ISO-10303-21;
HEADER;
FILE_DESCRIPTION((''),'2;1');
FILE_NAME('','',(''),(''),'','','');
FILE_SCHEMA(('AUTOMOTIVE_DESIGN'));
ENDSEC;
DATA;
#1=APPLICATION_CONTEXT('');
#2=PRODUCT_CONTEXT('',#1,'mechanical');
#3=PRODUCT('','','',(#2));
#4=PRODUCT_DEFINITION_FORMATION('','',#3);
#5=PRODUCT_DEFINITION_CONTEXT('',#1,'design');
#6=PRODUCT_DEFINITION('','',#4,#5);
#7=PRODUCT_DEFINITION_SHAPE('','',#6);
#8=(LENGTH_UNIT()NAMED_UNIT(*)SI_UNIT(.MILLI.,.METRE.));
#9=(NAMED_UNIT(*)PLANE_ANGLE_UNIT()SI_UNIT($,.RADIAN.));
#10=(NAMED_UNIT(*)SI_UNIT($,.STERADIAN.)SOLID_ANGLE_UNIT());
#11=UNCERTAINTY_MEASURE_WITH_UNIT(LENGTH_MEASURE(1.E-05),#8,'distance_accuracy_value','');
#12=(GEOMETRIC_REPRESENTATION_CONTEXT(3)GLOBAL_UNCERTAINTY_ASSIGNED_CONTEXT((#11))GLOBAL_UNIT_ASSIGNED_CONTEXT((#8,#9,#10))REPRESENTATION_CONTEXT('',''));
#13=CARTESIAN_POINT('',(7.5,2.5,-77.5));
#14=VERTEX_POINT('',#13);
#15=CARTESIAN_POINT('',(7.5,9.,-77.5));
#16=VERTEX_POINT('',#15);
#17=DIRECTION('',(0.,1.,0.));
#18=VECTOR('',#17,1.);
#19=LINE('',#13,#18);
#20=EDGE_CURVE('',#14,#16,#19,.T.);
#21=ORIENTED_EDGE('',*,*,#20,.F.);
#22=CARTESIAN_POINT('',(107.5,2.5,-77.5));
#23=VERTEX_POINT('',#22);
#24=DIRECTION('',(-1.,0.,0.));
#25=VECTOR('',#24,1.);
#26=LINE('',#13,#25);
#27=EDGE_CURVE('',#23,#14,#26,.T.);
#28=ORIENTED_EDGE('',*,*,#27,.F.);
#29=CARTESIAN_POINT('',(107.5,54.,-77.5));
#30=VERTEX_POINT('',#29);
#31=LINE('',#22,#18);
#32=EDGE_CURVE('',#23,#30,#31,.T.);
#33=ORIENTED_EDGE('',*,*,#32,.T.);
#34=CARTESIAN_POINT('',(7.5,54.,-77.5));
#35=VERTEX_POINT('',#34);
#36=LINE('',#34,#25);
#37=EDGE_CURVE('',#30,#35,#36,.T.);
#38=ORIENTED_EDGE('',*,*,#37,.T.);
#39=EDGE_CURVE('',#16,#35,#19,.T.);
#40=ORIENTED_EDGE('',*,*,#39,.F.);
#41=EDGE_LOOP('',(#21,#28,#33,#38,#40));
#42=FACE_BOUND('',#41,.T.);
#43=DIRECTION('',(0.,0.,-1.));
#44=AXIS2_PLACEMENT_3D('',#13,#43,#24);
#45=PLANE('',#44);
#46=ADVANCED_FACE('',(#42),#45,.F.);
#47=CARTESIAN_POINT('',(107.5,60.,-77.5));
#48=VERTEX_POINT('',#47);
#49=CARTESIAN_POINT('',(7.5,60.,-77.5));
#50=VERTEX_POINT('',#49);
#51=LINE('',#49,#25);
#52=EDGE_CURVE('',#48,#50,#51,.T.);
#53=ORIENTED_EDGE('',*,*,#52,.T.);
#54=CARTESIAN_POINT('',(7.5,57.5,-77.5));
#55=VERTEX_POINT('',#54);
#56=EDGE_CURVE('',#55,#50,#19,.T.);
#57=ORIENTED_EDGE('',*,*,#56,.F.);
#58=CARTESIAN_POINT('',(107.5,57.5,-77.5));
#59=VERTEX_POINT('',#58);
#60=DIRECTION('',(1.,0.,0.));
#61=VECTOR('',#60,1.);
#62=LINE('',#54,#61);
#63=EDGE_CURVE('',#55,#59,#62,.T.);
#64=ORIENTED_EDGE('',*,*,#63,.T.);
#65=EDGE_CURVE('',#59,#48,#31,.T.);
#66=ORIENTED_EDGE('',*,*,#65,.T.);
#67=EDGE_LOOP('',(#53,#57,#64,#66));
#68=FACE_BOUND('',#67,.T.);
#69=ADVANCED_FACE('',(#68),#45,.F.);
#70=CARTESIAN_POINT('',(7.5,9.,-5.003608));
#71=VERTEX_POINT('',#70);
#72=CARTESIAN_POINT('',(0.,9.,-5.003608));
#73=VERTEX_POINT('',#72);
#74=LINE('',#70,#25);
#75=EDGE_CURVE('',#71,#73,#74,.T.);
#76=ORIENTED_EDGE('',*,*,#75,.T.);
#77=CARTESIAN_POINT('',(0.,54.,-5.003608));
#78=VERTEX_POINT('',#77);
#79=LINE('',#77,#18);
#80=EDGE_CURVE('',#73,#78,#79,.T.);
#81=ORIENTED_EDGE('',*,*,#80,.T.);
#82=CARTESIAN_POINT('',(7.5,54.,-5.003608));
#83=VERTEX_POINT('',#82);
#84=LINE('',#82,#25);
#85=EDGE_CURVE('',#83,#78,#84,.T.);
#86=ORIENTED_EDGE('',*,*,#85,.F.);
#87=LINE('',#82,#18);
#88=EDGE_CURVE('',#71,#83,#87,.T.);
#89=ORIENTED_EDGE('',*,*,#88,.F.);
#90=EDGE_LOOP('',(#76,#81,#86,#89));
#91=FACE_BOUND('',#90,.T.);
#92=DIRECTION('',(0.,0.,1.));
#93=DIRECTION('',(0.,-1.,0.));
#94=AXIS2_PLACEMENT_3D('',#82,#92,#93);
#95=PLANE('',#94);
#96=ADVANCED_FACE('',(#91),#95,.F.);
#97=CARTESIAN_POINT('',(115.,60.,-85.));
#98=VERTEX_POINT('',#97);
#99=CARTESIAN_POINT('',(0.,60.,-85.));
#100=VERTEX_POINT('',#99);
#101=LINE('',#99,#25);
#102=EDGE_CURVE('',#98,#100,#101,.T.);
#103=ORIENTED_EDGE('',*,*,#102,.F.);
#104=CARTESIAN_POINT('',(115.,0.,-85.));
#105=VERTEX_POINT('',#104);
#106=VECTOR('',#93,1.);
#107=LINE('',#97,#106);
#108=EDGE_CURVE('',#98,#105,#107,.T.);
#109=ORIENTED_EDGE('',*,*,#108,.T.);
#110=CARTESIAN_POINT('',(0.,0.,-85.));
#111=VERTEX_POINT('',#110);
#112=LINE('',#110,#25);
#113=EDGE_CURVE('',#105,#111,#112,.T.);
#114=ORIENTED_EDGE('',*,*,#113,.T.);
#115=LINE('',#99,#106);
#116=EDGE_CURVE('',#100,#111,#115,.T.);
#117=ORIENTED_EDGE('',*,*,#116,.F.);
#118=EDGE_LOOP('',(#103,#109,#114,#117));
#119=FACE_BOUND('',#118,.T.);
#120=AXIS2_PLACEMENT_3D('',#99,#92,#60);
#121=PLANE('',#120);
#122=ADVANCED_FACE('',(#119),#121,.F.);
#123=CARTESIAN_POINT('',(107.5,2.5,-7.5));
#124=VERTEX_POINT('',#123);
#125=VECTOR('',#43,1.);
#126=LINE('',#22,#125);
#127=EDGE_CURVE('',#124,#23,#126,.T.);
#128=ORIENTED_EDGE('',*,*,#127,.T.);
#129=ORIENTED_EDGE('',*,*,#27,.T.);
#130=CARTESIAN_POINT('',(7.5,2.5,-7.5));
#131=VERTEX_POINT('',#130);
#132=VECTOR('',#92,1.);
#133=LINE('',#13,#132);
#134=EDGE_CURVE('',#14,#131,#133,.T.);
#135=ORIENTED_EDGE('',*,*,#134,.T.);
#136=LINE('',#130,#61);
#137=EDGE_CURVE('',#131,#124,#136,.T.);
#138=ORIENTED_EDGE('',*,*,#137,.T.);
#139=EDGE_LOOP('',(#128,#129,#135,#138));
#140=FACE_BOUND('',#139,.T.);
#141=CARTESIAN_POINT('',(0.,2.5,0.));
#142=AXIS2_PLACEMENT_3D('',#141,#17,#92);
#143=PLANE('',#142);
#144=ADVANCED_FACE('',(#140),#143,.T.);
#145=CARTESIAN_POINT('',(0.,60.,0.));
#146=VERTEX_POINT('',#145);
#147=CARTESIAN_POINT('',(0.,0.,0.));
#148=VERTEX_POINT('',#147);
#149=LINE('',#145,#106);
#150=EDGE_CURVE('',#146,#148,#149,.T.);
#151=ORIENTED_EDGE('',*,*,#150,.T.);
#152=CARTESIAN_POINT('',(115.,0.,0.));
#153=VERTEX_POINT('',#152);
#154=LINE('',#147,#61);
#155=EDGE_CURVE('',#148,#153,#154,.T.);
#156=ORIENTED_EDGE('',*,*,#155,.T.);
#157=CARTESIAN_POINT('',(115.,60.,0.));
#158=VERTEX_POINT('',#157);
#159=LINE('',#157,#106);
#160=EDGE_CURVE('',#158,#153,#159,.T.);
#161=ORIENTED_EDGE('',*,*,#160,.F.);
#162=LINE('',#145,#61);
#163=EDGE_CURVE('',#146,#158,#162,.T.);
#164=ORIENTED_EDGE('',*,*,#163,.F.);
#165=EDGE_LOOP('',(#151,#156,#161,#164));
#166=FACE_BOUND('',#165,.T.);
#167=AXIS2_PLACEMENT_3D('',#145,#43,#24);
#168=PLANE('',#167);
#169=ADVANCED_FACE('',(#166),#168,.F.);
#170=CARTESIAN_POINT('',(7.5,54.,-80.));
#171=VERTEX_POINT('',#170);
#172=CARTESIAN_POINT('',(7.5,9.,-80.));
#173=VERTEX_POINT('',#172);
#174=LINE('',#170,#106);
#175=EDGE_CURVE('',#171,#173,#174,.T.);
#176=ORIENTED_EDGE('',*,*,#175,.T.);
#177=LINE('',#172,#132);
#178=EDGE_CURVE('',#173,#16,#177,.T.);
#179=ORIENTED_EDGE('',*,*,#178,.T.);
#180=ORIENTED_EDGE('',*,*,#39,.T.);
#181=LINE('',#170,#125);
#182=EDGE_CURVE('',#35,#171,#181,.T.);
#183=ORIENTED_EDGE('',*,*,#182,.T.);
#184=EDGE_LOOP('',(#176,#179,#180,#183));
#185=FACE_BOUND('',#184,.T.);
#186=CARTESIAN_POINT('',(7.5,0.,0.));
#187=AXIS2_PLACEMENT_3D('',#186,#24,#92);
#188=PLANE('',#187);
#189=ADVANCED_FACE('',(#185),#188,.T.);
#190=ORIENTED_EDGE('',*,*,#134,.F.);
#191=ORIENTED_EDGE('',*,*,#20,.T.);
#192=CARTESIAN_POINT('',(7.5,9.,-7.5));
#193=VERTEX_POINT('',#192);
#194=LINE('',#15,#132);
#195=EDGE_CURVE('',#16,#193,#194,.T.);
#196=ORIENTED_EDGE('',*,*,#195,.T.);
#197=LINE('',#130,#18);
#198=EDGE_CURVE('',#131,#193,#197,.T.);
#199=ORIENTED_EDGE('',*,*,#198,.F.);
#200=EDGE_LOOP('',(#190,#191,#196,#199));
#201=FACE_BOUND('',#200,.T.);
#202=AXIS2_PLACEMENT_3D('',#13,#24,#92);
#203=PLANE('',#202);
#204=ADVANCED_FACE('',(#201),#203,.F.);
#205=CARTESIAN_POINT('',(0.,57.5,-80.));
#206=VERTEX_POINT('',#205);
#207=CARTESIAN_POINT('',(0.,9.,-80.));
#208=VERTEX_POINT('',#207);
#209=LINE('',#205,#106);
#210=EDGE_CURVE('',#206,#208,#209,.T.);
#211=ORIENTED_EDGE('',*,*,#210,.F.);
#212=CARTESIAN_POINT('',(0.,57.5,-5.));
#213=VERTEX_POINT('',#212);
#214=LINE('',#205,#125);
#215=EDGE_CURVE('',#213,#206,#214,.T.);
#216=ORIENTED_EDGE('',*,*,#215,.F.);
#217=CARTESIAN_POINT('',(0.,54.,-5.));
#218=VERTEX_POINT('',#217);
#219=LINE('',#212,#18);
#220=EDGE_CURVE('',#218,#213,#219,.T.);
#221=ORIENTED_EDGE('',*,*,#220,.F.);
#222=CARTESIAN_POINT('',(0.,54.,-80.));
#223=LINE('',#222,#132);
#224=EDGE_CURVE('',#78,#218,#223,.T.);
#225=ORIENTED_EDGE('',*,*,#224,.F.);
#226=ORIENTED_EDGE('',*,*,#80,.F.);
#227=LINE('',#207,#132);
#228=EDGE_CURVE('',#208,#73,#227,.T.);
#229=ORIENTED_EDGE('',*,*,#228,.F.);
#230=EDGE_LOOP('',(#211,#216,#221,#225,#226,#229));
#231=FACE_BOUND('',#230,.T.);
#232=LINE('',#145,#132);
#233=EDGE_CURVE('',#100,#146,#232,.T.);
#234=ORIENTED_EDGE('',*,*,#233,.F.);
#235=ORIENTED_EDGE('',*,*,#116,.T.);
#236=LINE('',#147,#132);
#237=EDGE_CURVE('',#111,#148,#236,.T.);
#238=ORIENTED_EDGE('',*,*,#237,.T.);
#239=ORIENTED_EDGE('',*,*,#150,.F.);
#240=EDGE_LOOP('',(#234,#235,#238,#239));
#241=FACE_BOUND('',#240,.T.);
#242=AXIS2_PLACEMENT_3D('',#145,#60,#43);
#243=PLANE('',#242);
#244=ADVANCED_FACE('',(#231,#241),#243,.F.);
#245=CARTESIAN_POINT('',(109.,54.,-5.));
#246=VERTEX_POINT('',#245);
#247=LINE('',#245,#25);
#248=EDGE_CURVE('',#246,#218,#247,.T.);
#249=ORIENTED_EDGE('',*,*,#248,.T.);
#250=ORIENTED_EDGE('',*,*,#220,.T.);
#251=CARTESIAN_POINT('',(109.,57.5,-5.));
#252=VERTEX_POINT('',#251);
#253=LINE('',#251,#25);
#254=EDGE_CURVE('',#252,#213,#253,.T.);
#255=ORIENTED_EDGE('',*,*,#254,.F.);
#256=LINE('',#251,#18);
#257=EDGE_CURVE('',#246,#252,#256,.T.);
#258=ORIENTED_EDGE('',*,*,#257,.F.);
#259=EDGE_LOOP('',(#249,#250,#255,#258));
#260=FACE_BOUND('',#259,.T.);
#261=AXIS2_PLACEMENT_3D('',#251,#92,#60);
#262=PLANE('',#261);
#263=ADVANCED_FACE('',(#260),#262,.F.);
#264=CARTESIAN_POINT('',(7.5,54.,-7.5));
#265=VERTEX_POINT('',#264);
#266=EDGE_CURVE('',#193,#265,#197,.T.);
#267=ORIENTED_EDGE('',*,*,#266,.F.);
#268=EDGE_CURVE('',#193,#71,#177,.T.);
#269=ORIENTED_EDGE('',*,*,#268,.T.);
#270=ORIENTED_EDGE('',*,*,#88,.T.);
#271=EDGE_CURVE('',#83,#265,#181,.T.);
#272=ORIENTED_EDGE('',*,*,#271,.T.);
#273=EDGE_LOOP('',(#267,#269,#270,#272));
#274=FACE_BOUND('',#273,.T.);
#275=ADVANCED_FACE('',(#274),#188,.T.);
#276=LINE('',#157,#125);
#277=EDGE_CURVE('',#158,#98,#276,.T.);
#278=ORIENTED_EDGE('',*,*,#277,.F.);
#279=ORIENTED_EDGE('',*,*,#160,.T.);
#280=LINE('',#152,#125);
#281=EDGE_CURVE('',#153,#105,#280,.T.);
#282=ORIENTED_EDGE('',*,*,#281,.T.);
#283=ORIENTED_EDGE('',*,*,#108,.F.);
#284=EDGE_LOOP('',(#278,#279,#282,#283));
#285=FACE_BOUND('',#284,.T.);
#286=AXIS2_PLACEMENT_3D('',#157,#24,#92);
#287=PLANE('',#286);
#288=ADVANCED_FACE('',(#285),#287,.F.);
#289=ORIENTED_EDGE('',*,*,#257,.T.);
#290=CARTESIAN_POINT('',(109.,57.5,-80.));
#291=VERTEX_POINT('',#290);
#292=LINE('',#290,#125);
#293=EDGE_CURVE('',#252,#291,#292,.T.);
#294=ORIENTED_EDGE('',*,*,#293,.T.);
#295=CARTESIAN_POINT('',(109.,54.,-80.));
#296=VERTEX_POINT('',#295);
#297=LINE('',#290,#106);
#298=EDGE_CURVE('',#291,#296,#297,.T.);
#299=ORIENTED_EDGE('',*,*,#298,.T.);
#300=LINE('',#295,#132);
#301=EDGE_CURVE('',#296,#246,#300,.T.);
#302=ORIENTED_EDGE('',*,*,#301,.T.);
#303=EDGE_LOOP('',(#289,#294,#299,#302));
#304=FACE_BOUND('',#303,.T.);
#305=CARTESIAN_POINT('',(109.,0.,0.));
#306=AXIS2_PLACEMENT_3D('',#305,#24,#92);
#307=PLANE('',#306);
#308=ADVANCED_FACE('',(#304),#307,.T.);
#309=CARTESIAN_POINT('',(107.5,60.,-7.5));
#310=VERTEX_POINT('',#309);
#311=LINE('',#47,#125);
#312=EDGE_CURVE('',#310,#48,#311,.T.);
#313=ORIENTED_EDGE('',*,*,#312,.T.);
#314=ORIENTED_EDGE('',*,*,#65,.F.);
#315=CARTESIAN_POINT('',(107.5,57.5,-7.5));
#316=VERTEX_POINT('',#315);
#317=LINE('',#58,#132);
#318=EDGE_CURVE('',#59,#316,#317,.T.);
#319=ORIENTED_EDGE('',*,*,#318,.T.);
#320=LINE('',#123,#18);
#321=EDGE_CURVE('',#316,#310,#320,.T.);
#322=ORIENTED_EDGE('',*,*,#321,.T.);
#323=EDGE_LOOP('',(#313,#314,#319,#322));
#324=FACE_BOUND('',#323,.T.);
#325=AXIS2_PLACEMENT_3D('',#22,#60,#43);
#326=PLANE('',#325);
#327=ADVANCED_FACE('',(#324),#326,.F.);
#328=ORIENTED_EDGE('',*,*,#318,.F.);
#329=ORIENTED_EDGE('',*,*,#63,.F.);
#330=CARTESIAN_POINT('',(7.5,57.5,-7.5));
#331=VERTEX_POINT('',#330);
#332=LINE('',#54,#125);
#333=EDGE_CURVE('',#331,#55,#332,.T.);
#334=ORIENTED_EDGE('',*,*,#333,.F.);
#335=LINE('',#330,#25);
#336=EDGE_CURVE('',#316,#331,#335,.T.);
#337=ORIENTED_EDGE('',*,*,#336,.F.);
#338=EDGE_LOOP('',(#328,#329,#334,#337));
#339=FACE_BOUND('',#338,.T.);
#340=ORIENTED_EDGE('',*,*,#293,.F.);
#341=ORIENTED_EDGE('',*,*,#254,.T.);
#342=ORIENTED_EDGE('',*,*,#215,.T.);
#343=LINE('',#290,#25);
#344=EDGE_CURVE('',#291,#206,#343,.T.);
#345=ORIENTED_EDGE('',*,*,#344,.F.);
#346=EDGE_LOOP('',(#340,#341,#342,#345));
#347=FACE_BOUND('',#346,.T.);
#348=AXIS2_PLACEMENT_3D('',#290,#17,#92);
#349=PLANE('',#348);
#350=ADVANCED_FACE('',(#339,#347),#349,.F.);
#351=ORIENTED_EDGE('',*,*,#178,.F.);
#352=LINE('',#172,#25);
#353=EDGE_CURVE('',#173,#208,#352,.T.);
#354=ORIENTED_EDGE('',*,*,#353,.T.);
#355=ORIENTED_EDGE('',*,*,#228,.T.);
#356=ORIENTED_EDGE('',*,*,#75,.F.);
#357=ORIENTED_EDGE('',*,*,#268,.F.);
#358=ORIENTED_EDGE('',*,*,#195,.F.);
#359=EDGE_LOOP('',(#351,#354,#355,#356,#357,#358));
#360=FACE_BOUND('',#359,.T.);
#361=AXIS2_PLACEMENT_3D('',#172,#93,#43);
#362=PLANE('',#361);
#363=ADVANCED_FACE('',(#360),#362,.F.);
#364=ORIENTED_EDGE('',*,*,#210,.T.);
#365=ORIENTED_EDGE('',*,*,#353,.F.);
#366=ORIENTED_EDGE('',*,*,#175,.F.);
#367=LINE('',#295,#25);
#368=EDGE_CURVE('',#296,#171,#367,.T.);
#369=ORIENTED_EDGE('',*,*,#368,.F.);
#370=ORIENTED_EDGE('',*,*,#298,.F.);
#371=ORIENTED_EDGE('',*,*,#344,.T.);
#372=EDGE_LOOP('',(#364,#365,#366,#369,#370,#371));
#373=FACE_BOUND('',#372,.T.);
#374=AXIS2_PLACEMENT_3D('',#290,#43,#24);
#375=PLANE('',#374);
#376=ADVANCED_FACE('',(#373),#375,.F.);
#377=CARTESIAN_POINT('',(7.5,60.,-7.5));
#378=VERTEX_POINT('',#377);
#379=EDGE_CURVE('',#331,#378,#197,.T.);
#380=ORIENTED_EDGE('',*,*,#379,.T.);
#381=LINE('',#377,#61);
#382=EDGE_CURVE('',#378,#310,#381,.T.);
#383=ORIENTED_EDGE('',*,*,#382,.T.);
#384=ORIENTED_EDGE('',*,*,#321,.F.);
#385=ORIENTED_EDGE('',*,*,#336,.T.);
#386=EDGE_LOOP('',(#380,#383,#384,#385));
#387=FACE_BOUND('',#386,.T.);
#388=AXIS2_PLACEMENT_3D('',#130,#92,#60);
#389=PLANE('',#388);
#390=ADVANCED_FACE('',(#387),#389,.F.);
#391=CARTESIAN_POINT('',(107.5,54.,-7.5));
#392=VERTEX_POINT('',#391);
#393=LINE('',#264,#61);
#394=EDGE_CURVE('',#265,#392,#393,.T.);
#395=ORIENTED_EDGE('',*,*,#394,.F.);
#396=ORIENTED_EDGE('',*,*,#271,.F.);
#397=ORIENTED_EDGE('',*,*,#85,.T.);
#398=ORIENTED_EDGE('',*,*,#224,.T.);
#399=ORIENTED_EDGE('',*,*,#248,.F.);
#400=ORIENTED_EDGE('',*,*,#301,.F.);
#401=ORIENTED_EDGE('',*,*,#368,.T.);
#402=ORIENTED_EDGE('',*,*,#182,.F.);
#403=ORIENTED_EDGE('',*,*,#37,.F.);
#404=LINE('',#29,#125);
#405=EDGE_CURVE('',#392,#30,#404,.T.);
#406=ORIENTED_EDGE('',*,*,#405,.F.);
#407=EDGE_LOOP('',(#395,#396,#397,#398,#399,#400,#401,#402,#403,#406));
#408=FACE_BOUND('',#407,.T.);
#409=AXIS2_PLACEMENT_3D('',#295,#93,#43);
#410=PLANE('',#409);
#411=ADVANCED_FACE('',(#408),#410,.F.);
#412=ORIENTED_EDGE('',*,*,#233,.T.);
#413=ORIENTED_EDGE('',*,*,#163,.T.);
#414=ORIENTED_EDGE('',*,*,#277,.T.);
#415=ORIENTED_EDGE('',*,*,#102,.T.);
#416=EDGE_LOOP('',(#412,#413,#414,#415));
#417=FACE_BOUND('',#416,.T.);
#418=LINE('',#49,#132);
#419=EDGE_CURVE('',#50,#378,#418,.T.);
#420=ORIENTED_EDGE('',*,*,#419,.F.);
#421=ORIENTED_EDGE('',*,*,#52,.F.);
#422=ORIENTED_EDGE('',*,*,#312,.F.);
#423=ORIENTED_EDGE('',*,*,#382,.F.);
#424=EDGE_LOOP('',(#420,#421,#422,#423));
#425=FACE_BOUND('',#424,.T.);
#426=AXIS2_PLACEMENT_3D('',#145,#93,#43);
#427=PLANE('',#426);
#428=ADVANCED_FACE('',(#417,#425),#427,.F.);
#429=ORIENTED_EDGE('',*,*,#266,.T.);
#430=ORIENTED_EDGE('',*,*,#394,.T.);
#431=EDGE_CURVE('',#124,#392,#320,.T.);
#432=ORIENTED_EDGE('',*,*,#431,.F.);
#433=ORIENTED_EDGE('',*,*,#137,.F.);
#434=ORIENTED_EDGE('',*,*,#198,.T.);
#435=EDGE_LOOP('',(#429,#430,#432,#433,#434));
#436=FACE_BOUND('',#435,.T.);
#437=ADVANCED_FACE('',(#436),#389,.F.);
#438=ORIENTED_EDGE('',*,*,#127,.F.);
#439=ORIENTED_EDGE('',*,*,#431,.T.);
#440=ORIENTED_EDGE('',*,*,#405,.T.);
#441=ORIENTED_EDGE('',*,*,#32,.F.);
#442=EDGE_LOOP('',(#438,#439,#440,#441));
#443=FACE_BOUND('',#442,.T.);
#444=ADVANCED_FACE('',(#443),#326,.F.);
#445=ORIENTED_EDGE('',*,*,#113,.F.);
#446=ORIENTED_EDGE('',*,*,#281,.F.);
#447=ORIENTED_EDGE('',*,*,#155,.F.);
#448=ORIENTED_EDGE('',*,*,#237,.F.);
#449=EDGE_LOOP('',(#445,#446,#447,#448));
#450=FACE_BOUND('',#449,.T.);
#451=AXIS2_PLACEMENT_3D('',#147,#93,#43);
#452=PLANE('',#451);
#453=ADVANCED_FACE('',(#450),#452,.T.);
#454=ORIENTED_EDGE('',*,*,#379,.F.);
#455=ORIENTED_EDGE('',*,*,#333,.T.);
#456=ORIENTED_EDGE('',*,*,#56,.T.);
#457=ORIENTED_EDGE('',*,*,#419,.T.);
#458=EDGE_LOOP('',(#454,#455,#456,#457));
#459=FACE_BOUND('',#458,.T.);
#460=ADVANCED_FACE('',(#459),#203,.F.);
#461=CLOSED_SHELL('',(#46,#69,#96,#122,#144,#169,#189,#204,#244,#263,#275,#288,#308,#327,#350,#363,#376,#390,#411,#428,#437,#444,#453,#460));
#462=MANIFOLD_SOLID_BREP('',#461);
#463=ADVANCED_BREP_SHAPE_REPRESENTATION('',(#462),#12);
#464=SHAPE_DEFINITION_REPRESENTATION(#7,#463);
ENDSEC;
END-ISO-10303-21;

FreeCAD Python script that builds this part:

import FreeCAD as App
import Part
import Sketcher

V = App.Vector
Q = App.Units.Quantity

doc = App.newDocument("Part")
body = doc.addObject("PartDesign::Body", "Body")

sketch1 = doc.addObject("Sketcher::SketchObject", "Sketch")
body.addObject(sketch1)
sketch1.AttachmentSupport = (doc.XZ_Plane, [""])
sketch1.MapMode = "FlatFace"
sketch1.addGeometry([
    Part.LineSegment(V(0, -85, 0), V(0, 0, 0)),
    Part.LineSegment(V(0, 0, 0), V(115, 0, 0)),
    Part.LineSegment(V(115, 0, 0), V(115, -85, 0)),
    Part.LineSegment(V(115, -85, 0), V(0, -85, 0)),
], False)
sketch1.addConstraint([
    Sketcher.Constraint("Coincident", 0, 2, 1, 1),
    Sketcher.Constraint("Coincident", 1, 2, 2, 1),
    Sketcher.Constraint("Coincident", 2, 2, 3, 1),
    Sketcher.Constraint("Coincident", 3, 2, 0, 1),
    Sketcher.Constraint("Vertical", 0),
    Sketcher.Constraint("Horizontal", 1),
    Sketcher.Constraint("Vertical", 2),
    Sketcher.Constraint("Horizontal", 3),
    Sketcher.Constraint("Coincident", 0, 2, -1, 1),
    Sketcher.Constraint("DistanceX", 1, 1, 1, 2, Q("115 mm")),
    Sketcher.Constraint("DistanceY", 0, 1, 0, 2, Q("85 mm")),
])
pad1 = doc.addObject("PartDesign::Pad", "Pad")
body.addObject(pad1)
pad1.Profile = sketch1
pad1.Length = 60
pad1.Reversed = True

sketch2 = doc.addObject("Sketcher::SketchObject", "Sketch001")
body.addObject(sketch2)
sketch2.AttachmentSupport = (doc.XZ_Plane, [""])
sketch2.MapMode = "FlatFace"
sketch2.AttachmentOffset = App.Placement(V(0, 0, -60), App.Rotation())
sketch2.addGeometry([
    Part.LineSegment(V(8, -78, 0), V(8, -8, 0)),
    Part.LineSegment(V(8, -8, 0), V(108, -8, 0)),
    Part.LineSegment(V(108, -8, 0), V(108, -78, 0)),
    Part.LineSegment(V(108, -78, 0), V(8, -78, 0)),
], False)
sketch2.addConstraint([
    Sketcher.Constraint("Coincident", 0, 2, 1, 1),
    Sketcher.Constraint("Coincident", 1, 2, 2, 1),
    Sketcher.Constraint("Coincident", 2, 2, 3, 1),
    Sketcher.Constraint("Coincident", 3, 2, 0, 1),
    Sketcher.Constraint("Vertical", 0),
    Sketcher.Constraint("Horizontal", 1),
    Sketcher.Constraint("Vertical", 2),
    Sketcher.Constraint("Horizontal", 3),
    Sketcher.Constraint("DistanceX", 1, 1, 1, 2, Q("100 mm")),
    Sketcher.Constraint("DistanceY", 0, 1, 0, 2, Q("70 mm")),
    Sketcher.Constraint("DistanceX", -1, 1, 0, 2, Q("7.5 mm")),
    Sketcher.Constraint("DistanceY", 0, 2, -1, 1, Q("7.5 mm")),
])
pocket1 = doc.addObject("PartDesign::Pocket", "Pocket")
body.addObject(pocket1)
pocket1.Profile = sketch2
pocket1.Length = 57.5
pocket1.Reversed = True

sketch3 = doc.addObject("Sketcher::SketchObject", "Sketch002")
body.addObject(sketch3)
sketch3.AttachmentSupport = (doc.YZ_Plane, [""])
sketch3.MapMode = "FlatFace"
sketch3.addGeometry([
    Part.LineSegment(V(57.5, -80, 0), V(54, -80, 0)),
    Part.LineSegment(V(54, -80, 0), V(54, -5, 0)),
    Part.LineSegment(V(54, -5, 0), V(57.5, -5, 0)),
    Part.LineSegment(V(57.5, -5, 0), V(57.5, -80, 0)),
], False)
sketch3.addConstraint([
    Sketcher.Constraint("Coincident", 0, 2, 1, 1),
    Sketcher.Constraint("Coincident", 1, 2, 2, 1),
    Sketcher.Constraint("Coincident", 2, 2, 3, 1),
    Sketcher.Constraint("Coincident", 3, 2, 0, 1),
    Sketcher.Constraint("Horizontal", 0),
    Sketcher.Constraint("Vertical", 1),
    Sketcher.Constraint("Horizontal", 2),
    Sketcher.Constraint("Vertical", 3),
    Sketcher.Constraint("DistanceY", 1, 1, 1, 2, Q("75 mm")),
    Sketcher.Constraint("DistanceX", 0, 2, 0, 1, Q("3.5 mm")),
    Sketcher.Constraint("DistanceX", -1, 1, 0, 2, Q("54 mm")),
    Sketcher.Constraint("DistanceY", 0, 2, -1, 1, Q("80 mm")),
])
pocket2 = doc.addObject("PartDesign::Pocket", "Pocket001")
body.addObject(pocket2)
pocket2.Profile = sketch3
pocket2.Length = 109
pocket2.Reversed = True

sketch4 = doc.addObject("Sketcher::SketchObject", "Sketch003")
body.addObject(sketch4)
sketch4.AttachmentSupport = (doc.YZ_Plane, [""])
sketch4.MapMode = "FlatFace"
sketch4.addGeometry([
    Part.LineSegment(V(54, -80, 0), V(9, -80, 0)),
    Part.LineSegment(V(9, -80, 0), V(9, -5, 0)),
    Part.LineSegment(V(9, -5, 0), V(54, -5, 0)),
    Part.LineSegment(V(54, -5, 0), V(54, -80, 0)),
], False)
sketch4.addConstraint([
    Sketcher.Constraint("Coincident", 0, 2, 1, 1),
    Sketcher.Constraint("Coincident", 1, 2, 2, 1),
    Sketcher.Constraint("Coincident", 2, 2, 3, 1),
    Sketcher.Constraint("Coincident", 3, 2, 0, 1),
    Sketcher.Constraint("Horizontal", 0),
    Sketcher.Constraint("Vertical", 1),
    Sketcher.Constraint("Horizontal", 2),
    Sketcher.Constraint("Vertical", 3),
    Sketcher.Constraint("DistanceX", 0, 2, 0, 1, Q("45 mm")),
    Sketcher.Constraint("DistanceX", -1, 1, 0, 2, Q("9 mm")),
    Sketcher.Constraint("DistanceY", 0, 2, -1, 1, Q("80 mm")),
    Sketcher.Constraint("DistanceY", 1, 1, 1, 2, Q("74.996392 mm")),
])
pocket3 = doc.addObject("PartDesign::Pocket", "Pocket002")
body.addObject(pocket3)
pocket3.Profile = sketch4
pocket3.Length = 7.5
pocket3.Reversed = True

doc.recompute()
